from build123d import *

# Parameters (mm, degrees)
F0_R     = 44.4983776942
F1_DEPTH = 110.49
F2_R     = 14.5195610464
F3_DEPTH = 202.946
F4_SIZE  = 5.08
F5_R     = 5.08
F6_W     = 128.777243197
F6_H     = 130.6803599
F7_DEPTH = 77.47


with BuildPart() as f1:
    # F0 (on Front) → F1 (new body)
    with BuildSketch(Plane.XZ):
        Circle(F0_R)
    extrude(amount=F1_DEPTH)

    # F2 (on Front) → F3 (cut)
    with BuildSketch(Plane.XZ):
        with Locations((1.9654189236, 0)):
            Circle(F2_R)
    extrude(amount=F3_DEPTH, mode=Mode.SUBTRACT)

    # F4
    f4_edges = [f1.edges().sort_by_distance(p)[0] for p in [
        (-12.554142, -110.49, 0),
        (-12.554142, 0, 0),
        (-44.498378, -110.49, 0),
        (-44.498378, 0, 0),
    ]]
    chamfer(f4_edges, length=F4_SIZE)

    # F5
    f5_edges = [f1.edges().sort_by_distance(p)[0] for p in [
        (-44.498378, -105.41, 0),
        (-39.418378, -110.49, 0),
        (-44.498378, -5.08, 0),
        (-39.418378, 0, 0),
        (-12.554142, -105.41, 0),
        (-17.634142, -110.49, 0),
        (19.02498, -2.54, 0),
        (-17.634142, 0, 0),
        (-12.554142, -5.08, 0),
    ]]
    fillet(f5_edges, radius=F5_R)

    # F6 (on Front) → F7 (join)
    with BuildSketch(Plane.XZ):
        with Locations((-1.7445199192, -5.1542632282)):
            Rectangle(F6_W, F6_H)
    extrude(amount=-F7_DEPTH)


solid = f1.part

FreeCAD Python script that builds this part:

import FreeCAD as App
import Part
import Sketcher

V = App.Vector
Q = App.Units.Quantity


def edges_at(feature, points):
    """Names of the edges that pass closest to the given points."""
    edges = feature.Shape.Edges
    near = lambda p: min(range(len(edges)), key=lambda i: edges[i].distToShape(Part.Vertex(*p))[0])
    return sorted({f"Edge{near(p) + 1}" for p in points})

doc = App.newDocument("Part")
body = doc.addObject("PartDesign::Body", "Body")

sketch1 = body.newObject("Sketcher::SketchObject", "Sketch")
sketch1.AttachmentSupport = (doc.getObject("XZ_Plane"), [""])
sketch1.MapMode = "FlatFace"
sketch1.addGeometry(Part.Circle(V(0, 0, 0), V(0, 0, 1), 44.498378), False)
sketch1.addConstraint(Sketcher.Constraint("Coincident", 0, 3, -1, 1))
sketch1.addConstraint(Sketcher.Constraint("Diameter", 0, 88.996755))
pad1 = body.newObject("PartDesign::Pad", "Pad")
pad1.Profile = sketch1
pad1.Length = Q("4.35 in")

sketch2 = body.newObject("Sketcher::SketchObject", "Sketch001")
sketch2.AttachmentSupport = (doc.getObject("XZ_Plane"), [""])
sketch2.MapMode = "FlatFace"
sketch2.addGeometry(Part.Circle(V(1.965419, 0, 0), V(0, 0, 1), 14.519561), False)
sketch2.addConstraint(Sketcher.Constraint("PointOnObject", 0, 3, -1))
sketch2.addConstraint(Sketcher.Constraint("Diameter", 0, 29.039122))
sketch2.addConstraint(Sketcher.Constraint("DistanceX", -1, 1, 0, 3, 1.965419))
pocket1 = body.newObject("PartDesign::Pocket", "Pocket")
pocket1.Profile = sketch2
pocket1.Length = Q("7.99 in")
pocket1.Reversed = True
doc.recompute()

chamfer = body.newObject("PartDesign::Chamfer", "Chamfer")
chamfer.Base = (pocket1, edges_at(pocket1, [
    (-12.554, -110.49, 0),
    (-12.554, 0, 0),
    (-44.498, -110.49, 0),
    (-44.498, 0, 0),
]))
chamfer.Size = Q("0.2 in")
doc.recompute()

fillet = body.newObject("PartDesign::Fillet", "Fillet")
fillet.Base = (chamfer, edges_at(chamfer, [
    (-44.498, -105.41, 0),
    (-39.418, -110.49, 0),
    (-44.498, -5.08, 0),
    (-39.418, 0, 0),
    (-12.554, -105.41, 0),
    (-17.634, -110.49, 0),
    (19.025, -2.54, 0),
    (-17.634, 0, 0),
    (-12.554, -5.08, 0),
]))
fillet.Radius = Q("0.2 in")

sketch3 = body.newObject("Sketcher::SketchObject", "Sketch002")
sketch3.AttachmentSupport = (doc.getObject("XZ_Plane"), [""])
sketch3.MapMode = "FlatFace"
sketch3.addGeometry(Part.LineSegment(V(-66.133142, 60.185917, 0), V(-66.133142, -70.494443, 0)), False)
sketch3.addGeometry(Part.LineSegment(V(-66.133142, -70.494443, 0), V(62.644102, -70.494443, 0)), False)
sketch3.addGeometry(Part.LineSegment(V(62.644102, -70.494443, 0), V(62.644102, 60.185917, 0)), False)
sketch3.addGeometry(Part.LineSegment(V(62.644102, 60.185917, 0), V(-66.133142, 60.185917, 0)), False)
sketch3.addConstraint(Sketcher.Constraint("Coincident", 0, 2, 1, 1))
sketch3.addConstraint(Sketcher.Constraint("Coincident", 1, 2, 2, 1))
sketch3.addConstraint(Sketcher.Constraint("Coincident", 2, 2, 3, 1))
sketch3.addConstraint(Sketcher.Constraint("Coincident", 3, 2, 0, 1))
sketch3.addConstraint(Sketcher.Constraint("Vertical", 0))
sketch3.addConstraint(Sketcher.Constraint("Horizontal", 1))
sketch3.addConstraint(Sketcher.Constraint("Vertical", 2))
sketch3.addConstraint(Sketcher.Constraint("Horizontal", 3))
sketch3.addConstraint(Sketcher.Constraint("DistanceY", 0, 2, 0, 1, 130.68036))
sketch3.addConstraint(Sketcher.Constraint("DistanceX", -1, 1, 1, 2, 62.644102))
sketch3.addConstraint(Sketcher.Constraint("DistanceX", 1, 1, 1, 2, 128.777243))
sketch3.addConstraint(Sketcher.Constraint("DistanceY", 0, 2, -1, 1, 70.494443))
pad2 = body.newObject("PartDesign::Pad", "Pad001")
pad2.Profile = sketch3
pad2.Length = Q("3.05 in")
pad2.Reversed = True

doc.recompute()
